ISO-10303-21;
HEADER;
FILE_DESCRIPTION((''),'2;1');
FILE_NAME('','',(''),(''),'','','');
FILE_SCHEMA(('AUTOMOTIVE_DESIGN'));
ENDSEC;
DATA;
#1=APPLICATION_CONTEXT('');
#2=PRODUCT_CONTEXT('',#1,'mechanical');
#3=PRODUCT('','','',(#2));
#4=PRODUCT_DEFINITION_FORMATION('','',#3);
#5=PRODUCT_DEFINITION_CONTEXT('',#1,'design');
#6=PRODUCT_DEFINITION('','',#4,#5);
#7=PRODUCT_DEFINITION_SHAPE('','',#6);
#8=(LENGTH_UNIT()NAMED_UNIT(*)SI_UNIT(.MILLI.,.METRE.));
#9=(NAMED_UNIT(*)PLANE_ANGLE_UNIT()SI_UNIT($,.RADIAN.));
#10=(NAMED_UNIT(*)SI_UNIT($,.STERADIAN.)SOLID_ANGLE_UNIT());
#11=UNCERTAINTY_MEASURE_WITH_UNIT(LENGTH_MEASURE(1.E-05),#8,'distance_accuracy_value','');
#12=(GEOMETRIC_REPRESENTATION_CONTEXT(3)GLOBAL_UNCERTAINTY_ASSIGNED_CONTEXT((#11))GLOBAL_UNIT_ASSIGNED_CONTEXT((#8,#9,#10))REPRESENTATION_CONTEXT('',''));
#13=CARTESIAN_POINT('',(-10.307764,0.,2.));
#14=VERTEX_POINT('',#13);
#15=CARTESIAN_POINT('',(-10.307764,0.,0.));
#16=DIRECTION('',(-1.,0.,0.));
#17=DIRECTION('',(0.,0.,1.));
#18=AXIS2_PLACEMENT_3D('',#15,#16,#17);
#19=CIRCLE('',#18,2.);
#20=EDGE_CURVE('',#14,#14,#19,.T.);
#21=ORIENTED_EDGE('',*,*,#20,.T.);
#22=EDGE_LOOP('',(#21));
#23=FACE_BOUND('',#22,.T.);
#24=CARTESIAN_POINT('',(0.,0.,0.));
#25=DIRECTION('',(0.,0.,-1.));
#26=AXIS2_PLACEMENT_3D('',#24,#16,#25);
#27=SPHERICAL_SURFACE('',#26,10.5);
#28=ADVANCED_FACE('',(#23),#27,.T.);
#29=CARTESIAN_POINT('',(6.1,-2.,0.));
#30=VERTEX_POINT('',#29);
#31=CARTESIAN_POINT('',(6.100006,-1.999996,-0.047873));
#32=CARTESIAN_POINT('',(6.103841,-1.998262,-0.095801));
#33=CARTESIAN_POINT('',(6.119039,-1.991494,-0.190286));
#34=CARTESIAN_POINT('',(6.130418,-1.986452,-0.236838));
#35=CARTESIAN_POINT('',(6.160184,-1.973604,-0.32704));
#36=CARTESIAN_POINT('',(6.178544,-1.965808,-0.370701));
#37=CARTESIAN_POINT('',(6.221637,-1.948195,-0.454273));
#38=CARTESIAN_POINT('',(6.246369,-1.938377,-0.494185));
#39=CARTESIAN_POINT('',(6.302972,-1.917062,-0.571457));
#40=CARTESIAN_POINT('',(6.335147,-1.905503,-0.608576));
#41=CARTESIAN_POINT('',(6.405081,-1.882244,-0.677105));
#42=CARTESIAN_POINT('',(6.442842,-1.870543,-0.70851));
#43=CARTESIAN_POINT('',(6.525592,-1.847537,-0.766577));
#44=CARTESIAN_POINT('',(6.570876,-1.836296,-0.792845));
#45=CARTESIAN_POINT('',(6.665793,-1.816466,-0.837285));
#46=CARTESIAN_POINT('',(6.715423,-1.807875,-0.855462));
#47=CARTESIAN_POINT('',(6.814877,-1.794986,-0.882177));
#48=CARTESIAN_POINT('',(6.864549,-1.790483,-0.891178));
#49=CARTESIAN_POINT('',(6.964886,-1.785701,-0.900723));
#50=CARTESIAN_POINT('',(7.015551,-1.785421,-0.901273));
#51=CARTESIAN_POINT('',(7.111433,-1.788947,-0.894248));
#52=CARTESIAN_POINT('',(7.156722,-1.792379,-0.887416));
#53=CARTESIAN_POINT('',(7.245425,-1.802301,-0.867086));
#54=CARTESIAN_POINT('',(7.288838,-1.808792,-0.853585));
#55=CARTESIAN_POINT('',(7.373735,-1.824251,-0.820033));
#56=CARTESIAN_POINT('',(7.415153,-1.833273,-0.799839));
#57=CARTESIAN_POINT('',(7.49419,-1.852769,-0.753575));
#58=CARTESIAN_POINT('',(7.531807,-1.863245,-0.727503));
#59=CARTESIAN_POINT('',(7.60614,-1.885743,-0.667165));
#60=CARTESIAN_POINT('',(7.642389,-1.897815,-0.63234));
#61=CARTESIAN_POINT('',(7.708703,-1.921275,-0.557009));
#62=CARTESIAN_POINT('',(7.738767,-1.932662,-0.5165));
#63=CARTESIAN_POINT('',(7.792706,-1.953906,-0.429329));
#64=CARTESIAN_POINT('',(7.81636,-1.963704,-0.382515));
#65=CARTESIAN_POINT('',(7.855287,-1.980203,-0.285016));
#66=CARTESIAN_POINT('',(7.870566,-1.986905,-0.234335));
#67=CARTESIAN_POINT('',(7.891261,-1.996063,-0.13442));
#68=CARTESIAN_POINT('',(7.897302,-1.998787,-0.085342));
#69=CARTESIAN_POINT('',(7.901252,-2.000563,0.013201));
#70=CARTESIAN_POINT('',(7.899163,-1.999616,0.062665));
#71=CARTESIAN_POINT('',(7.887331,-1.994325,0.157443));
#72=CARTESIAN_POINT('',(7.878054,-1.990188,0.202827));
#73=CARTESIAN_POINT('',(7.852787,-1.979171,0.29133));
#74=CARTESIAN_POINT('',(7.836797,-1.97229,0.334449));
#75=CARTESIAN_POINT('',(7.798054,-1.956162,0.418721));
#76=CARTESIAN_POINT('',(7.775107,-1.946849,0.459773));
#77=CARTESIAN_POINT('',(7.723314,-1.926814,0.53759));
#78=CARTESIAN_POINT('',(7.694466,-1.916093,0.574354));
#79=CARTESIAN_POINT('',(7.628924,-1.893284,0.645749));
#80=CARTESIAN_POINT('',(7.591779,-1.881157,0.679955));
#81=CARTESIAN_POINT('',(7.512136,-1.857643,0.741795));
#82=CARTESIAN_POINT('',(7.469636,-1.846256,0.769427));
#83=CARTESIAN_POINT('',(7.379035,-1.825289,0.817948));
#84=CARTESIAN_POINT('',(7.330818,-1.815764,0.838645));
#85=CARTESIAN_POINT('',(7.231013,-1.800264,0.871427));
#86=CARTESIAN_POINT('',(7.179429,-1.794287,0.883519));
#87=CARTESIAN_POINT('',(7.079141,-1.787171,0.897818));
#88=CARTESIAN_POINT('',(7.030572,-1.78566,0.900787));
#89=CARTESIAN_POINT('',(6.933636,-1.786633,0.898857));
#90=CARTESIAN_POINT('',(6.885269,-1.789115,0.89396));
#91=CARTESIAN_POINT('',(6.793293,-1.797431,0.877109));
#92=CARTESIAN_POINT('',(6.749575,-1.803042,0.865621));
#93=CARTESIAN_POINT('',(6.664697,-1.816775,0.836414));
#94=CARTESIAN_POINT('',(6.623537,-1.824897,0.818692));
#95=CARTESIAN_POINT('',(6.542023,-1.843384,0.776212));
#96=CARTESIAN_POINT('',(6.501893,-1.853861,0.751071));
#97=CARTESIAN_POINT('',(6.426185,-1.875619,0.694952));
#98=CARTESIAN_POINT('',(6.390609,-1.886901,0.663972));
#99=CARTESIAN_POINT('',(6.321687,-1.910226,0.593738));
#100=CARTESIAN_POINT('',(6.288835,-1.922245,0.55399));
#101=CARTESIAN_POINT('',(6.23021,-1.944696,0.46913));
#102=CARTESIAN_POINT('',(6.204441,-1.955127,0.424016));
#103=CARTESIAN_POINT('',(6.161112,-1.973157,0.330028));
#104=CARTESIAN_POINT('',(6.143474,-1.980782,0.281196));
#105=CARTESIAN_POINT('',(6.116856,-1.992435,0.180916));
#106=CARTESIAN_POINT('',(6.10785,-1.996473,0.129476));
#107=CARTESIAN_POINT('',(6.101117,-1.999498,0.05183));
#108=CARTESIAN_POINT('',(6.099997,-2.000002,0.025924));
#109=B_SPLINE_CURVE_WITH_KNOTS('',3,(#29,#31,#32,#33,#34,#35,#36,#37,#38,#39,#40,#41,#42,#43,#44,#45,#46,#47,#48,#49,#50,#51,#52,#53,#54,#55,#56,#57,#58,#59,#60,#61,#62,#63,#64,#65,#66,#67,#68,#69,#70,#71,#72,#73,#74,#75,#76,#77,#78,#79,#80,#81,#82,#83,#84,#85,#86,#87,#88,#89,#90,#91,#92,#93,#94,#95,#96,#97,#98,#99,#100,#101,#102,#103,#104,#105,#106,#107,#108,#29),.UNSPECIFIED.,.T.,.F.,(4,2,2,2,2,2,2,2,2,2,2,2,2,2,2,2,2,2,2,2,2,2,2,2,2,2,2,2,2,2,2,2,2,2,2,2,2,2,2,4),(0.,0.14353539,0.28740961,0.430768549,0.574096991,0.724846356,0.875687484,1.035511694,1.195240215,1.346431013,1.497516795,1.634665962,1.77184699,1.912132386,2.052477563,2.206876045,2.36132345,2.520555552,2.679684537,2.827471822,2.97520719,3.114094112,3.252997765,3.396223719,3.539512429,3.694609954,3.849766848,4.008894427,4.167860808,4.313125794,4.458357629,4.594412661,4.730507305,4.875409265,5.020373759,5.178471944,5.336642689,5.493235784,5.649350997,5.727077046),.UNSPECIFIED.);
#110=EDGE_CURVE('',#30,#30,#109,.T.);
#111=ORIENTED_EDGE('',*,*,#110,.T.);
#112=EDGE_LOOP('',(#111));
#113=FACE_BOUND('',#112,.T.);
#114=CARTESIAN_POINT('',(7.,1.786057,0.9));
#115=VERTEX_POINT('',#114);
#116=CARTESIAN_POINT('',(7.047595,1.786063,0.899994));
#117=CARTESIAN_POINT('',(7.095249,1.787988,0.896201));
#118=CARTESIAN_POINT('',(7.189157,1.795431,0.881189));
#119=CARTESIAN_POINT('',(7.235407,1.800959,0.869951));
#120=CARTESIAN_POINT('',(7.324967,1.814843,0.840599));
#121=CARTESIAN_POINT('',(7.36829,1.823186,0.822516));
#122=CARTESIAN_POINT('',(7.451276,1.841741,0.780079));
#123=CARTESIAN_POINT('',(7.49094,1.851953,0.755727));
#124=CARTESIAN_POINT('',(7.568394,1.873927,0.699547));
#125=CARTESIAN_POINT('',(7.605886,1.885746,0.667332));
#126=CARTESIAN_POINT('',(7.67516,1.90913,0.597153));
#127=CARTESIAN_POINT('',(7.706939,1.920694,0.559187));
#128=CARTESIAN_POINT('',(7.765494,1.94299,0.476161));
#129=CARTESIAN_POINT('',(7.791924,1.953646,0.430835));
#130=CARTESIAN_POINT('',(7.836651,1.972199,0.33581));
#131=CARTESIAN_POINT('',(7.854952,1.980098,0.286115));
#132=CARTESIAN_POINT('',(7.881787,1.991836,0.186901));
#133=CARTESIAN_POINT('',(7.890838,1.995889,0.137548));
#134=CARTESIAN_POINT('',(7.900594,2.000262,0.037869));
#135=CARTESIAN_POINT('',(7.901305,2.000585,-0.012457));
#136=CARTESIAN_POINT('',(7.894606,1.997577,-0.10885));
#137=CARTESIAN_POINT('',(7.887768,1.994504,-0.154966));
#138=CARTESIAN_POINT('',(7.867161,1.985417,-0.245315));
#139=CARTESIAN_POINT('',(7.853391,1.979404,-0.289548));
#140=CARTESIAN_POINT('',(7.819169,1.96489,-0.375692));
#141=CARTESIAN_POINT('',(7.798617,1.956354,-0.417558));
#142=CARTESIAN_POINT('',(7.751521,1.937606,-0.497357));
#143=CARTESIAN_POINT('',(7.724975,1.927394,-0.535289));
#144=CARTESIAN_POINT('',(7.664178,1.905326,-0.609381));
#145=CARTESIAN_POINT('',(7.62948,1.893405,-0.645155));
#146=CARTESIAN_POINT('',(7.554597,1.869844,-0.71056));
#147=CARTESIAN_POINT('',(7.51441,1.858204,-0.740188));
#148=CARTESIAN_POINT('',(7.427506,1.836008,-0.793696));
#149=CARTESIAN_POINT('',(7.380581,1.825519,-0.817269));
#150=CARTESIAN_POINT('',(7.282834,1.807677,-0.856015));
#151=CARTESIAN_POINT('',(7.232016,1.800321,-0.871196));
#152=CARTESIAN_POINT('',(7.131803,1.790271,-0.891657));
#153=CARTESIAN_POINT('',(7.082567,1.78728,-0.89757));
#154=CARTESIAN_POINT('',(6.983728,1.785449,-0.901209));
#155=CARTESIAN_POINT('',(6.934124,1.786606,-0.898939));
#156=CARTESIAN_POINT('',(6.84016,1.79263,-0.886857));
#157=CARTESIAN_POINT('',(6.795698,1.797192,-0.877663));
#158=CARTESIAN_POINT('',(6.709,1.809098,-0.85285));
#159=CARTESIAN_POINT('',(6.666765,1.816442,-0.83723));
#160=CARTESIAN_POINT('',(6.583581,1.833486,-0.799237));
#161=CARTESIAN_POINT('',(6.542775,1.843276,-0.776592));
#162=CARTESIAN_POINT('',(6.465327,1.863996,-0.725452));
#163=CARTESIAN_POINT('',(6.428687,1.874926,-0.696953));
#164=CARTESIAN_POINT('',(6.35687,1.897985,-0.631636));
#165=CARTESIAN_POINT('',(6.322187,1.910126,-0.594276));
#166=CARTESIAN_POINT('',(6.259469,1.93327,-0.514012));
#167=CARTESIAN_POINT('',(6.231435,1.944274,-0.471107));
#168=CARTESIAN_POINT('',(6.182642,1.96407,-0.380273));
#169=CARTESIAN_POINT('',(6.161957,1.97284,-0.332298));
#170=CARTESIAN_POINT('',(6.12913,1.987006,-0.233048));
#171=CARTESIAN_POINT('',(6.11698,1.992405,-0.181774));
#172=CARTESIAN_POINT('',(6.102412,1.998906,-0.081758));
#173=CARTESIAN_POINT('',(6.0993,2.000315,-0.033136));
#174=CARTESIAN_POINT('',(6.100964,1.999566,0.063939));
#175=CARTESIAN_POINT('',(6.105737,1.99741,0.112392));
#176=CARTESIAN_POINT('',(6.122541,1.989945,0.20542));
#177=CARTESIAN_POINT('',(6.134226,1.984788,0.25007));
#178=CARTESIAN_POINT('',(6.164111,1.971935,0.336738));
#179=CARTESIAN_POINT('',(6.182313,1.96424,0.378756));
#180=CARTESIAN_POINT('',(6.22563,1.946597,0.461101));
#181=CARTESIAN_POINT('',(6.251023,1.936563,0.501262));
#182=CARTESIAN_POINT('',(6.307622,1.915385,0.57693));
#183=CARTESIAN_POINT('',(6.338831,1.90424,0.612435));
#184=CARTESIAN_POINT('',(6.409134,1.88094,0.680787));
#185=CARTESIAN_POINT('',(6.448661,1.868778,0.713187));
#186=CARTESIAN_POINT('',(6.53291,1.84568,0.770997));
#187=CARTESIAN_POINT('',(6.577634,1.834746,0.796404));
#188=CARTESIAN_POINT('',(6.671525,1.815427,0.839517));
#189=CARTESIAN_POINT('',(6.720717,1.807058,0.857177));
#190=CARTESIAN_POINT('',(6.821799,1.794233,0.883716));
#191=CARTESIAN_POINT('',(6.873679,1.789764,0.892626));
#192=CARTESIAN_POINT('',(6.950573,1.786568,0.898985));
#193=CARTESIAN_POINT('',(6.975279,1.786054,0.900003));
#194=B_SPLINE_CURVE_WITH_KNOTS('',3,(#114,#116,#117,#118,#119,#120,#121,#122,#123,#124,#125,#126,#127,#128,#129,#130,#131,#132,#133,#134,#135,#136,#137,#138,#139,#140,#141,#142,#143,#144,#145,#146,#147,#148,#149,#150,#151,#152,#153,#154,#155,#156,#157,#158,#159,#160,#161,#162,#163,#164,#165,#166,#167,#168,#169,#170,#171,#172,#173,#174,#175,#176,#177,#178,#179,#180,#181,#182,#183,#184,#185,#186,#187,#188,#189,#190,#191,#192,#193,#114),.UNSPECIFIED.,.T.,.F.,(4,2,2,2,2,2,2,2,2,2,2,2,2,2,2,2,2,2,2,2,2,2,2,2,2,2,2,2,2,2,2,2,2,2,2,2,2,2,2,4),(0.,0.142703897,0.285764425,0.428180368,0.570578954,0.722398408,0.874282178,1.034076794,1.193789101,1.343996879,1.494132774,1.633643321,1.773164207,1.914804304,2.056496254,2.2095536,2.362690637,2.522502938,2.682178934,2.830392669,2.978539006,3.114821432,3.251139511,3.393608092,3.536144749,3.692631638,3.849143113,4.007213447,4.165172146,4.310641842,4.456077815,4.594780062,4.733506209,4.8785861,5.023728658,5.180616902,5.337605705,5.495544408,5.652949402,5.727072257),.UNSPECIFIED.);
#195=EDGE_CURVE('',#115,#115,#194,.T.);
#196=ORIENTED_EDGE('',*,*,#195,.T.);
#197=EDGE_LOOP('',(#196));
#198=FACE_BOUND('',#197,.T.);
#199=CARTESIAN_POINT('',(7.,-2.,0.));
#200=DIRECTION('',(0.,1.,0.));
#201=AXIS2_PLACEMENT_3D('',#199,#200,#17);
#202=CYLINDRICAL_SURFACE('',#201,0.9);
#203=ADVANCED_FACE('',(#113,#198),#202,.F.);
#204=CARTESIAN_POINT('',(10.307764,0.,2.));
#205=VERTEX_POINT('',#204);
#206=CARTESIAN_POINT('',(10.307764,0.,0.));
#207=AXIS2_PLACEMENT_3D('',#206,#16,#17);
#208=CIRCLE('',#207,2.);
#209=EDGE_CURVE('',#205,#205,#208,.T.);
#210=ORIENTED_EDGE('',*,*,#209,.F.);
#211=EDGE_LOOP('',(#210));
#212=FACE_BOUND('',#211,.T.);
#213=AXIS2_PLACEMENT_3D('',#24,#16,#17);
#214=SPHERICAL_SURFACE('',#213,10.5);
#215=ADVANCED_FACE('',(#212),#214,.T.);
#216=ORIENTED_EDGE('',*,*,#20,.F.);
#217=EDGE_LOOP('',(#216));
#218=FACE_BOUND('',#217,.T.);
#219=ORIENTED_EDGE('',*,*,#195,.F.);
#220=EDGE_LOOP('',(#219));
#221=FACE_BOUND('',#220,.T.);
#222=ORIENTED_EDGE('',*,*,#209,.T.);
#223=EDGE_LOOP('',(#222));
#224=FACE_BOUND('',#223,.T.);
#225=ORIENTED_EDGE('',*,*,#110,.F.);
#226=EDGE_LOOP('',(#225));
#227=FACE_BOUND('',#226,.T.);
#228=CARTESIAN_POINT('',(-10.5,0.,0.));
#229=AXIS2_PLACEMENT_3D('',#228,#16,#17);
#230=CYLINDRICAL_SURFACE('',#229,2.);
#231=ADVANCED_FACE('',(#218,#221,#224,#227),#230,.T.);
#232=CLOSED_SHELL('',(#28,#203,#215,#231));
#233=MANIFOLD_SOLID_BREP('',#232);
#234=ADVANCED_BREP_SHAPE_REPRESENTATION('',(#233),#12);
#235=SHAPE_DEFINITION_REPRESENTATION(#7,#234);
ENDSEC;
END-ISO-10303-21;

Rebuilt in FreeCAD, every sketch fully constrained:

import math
import FreeCAD as App
import Part
import Sketcher

doc = App.newDocument("Part")
params = doc.addObject("Spreadsheet::Sheet", "Params")
for row, (alias, value) in enumerate([
    ("sketch1_radius", "10.5 mm"),
    ("revolution_angle", "360 deg"),
    ("sketch2_diameter", "1.8 mm"),
], start=1):
    params.set(f"A{row}", alias)
    params.set(f"B{row}", "=" + value)
    params.setAlias(f"B{row}", alias)

body = doc.addObject("PartDesign::Body", "Body")

# Sketch on XZ plane
sketch1 = body.newObject("Sketcher::SketchObject", "Sketch")
sketch1.AttachmentSupport = (doc.getObject("XZ_Plane"), [""])
sketch1.MapMode = "FlatFace"
sketch1.addGeometry([
    Part.LineSegment(App.Vector(10.5, 0, 0), App.Vector(-10.5, 0, 0)),
    Part.ArcOfCircle(Part.Circle(App.Vector(0, 0, 0), App.Vector(0, 0, 1), 10.5), math.radians(169.02), math.radians(180)),
    Part.LineSegment(App.Vector(-10.3, 2, 0), App.Vector(10.3, 2, 0)),
    Part.ArcOfCircle(Part.Circle(App.Vector(0, 0, 0), App.Vector(0, 0, 1), 10.5), math.radians(0), math.radians(10.98)),
], False)
sketch1.addConstraint([
    Sketcher.Constraint("Coincident", 0, 2, 1, 2),
    Sketcher.Constraint("Coincident", 1, 1, 2, 1),
    Sketcher.Constraint("Coincident", 2, 2, 3, 2),
    Sketcher.Constraint("Coincident", 3, 1, 0, 1),
    Sketcher.Constraint("Horizontal", 0),
    Sketcher.Constraint("Horizontal", 2),
    Sketcher.Constraint("Coincident", 1, 3, -1, 1),
    Sketcher.Constraint("Coincident", 3, 3, -1, 1),
    Sketcher.Constraint("Equal", 1, 3),
    Sketcher.Constraint("PointOnObject", 0, 2, -1),
    Sketcher.Constraint("Radius", 1, 10.5),
    Sketcher.Constraint("DistanceY", -1, 1, 1, 1, 2.0),
])
sketch1.setExpression("Constraints[10]", "Params.sketch1_radius")
revolution = body.newObject("PartDesign::Revolution", "Revolution")
revolution.Profile = sketch1
revolution.ReferenceAxis = (sketch1, ["H_Axis"])
revolution.setExpression("Angle", "Params.revolution_angle")

# Sketch on XZ plane
sketch2 = body.newObject("Sketcher::SketchObject", "Sketch001")
sketch2.AttachmentSupport = (doc.getObject("XZ_Plane"), [""])
sketch2.MapMode = "FlatFace"
sketch2.addGeometry(Part.Circle(App.Vector(7, 0, 0), App.Vector(0, 0, 1), 0.9), False)
sketch2.addConstraint([
    Sketcher.Constraint("PointOnObject", 0, 3, -1),
    Sketcher.Constraint("Diameter", 0, 1.8),
    Sketcher.Constraint("DistanceX", -1, 1, 0, 3, 7.0),
])
sketch2.setExpression("Constraints[1]", "Params.sketch2_diameter")
pocket1 = body.newObject("PartDesign::Pocket", "Pocket")
pocket1.Profile = sketch2
pocket1.Type = "ThroughAll"
pocket1.Midplane = True

doc.recompute()
